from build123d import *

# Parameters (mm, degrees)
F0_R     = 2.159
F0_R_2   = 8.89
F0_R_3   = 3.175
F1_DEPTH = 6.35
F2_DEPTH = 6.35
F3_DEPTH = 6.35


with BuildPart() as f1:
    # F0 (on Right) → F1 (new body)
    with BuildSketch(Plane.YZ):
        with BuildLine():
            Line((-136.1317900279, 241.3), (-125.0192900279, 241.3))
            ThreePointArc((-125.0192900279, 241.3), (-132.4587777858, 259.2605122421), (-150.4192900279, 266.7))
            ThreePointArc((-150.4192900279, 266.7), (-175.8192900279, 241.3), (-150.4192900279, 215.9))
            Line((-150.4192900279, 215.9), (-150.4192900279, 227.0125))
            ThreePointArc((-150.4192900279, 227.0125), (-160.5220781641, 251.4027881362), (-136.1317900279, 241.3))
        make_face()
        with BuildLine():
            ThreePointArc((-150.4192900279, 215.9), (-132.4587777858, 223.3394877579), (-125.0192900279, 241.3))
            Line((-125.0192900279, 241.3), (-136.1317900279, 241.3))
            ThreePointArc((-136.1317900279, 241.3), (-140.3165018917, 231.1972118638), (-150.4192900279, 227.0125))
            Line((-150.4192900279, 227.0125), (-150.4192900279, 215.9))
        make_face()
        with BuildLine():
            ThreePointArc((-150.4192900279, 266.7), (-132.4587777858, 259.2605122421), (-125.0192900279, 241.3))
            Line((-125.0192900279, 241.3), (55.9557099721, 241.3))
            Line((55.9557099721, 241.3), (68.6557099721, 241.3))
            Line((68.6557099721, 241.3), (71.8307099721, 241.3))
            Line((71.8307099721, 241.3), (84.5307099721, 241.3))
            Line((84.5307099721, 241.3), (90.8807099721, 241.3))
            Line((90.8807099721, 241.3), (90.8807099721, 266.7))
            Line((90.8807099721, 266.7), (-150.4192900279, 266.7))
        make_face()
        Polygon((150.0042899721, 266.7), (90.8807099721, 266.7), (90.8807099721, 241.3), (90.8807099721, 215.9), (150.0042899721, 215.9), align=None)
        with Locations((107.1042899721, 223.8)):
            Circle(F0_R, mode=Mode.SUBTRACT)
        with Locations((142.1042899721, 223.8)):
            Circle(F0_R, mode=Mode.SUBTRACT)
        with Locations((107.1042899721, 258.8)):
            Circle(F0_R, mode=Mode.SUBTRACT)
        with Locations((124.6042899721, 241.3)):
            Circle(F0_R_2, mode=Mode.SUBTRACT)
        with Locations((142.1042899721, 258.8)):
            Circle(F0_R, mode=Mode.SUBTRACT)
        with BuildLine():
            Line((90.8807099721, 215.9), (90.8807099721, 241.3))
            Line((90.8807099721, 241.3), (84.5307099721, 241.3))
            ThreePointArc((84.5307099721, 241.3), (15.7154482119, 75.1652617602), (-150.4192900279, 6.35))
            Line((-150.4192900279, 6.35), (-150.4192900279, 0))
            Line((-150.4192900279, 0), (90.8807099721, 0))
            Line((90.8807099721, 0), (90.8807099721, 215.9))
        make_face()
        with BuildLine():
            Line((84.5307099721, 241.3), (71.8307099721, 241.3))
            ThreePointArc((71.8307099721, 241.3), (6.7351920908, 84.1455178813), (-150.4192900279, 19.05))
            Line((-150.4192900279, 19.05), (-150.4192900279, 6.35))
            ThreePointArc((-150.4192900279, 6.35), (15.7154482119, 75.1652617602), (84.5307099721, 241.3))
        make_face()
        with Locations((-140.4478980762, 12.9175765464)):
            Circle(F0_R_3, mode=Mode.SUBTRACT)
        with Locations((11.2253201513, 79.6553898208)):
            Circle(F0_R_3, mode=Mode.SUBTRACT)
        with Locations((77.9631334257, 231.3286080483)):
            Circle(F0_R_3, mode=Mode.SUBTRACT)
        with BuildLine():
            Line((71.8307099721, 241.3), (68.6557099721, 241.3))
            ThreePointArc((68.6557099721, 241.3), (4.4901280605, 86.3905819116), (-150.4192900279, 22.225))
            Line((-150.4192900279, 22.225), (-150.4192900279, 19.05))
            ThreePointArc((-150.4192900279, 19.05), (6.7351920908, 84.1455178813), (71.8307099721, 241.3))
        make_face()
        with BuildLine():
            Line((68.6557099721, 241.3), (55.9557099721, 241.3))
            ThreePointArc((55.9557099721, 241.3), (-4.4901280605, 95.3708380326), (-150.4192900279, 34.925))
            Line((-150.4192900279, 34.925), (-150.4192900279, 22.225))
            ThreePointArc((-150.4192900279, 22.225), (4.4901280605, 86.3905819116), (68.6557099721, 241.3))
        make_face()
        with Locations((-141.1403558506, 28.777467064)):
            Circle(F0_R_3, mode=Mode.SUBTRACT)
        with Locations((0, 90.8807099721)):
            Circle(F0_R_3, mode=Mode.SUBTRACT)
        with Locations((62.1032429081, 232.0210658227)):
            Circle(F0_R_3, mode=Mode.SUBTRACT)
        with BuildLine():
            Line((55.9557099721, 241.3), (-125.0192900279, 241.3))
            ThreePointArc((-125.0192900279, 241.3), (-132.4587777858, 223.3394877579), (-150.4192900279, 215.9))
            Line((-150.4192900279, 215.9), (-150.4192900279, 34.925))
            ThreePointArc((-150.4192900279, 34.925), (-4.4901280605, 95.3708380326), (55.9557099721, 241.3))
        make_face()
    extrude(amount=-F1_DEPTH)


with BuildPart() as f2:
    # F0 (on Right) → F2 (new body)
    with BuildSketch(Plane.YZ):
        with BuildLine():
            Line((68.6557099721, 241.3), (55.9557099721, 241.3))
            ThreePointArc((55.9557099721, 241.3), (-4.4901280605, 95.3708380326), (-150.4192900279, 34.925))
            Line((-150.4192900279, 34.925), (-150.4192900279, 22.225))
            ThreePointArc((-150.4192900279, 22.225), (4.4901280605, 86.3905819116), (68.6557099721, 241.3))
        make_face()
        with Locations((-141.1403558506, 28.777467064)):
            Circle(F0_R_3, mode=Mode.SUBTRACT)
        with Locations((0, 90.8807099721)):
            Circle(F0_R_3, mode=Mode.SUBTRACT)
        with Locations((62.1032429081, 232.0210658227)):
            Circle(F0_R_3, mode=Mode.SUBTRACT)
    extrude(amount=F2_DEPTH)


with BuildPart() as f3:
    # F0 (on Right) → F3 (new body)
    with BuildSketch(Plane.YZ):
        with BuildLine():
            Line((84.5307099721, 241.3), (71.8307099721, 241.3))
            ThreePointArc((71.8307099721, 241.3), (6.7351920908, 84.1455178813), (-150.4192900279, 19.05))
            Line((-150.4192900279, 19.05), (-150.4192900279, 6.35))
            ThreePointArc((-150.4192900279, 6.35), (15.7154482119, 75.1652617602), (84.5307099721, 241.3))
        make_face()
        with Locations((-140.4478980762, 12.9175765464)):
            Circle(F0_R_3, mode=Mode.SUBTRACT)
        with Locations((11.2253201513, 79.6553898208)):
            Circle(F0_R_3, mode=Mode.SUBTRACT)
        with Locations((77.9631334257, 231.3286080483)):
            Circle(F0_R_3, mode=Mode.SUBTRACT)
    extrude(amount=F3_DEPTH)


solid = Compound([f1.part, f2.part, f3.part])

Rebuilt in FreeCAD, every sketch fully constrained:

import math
import FreeCAD as App
import Part
import Sketcher

V = App.Vector
Q = App.Units.Quantity

doc = App.newDocument("Part")
params = doc.addObject("Spreadsheet::Sheet", "Params")
for row, (alias, value) in enumerate([
    ("sketch1_radius", "1 in"),
    ("sketch1_diameter", "0.7 in"),
    ("sketch1_diameter2", "0.25 in"),
    ("sketch1_diameter3", "0.17 in"),
    ("sketch1_diameter4", "1.125 in"),
    ("pad1_length", "0.25 in"),
    ("sketch2_diameter", "0.25 in"),
    ("sketch2_width", "0.5 in"),
    ("sketch2_radius", "8.125 in"),
    ("pad2_length", "0.25 in"),
    ("sketch3_diameter", "0.25 in"),
    ("sketch3_radius", "8.75 in"),
    ("sketch3_radius2", "9.25 in"),
    ("pad3_length", "0.25 in"),
], start=1):
    params.set(f"A{row}", alias)
    params.set(f"B{row}", "=" + value)
    params.setAlias(f"B{row}", alias)

body = doc.addObject("PartDesign::Body", "Body")

# Sketch on YZ plane
sketch1 = body.newObject("Sketcher::SketchObject", "Sketch")
sketch1.AttachmentSupport = (doc.getObject("YZ_Plane"), [""])
sketch1.MapMode = "FlatFace"
sketch1.addGeometry([
    Part.ArcOfCircle(Part.Circle(V(-150.41929, 241.3, 0), V(0, 0, 1), 25.4), math.radians(90), math.radians(270)),  # 0
    Part.LineSegment(V(-150.41929, 215.9, 0), V(-150.41929, 0, 0)),  # 1
    Part.LineSegment(V(-150.41929, 0, 0), V(90.88071, 0, 0)),  # 2
    Part.LineSegment(V(90.88071, 0, 0), V(90.88071, 215.9, 0)),  # 3
    Part.LineSegment(V(90.88071, 215.9, 0), V(150.00429, 215.9, 0)),  # 4
    Part.LineSegment(V(150.00429, 215.9, 0), V(150.00429, 266.7, 0)),  # 5
    Part.LineSegment(V(150.00429, 266.7, 0), V(-150.41929, 266.7, 0)),  # 6
    Part.Circle(V(-140.447898, 12.917577, 0), V(0, 0, 1), 3.175),  # 7
    Part.Circle(V(-141.140356, 28.777467, 0), V(0, 0, 1), 3.175),  # 8
    Part.Circle(V(11.22532, 79.65539, 0), V(0, 0, 1), 3.175),  # 9
    Part.Circle(V(0, 90.88071, 0), V(0, 0, 1), 3.175),  # 10
    Part.Circle(V(-150.41929, 241.3, 0), V(0, 0, 1), 14.2875),  # 11
    Part.Circle(V(62.103243, 232.021066, 0), V(0, 0, 1), 3.175),  # 12
    Part.Circle(V(107.10429, 223.8, 0), V(0, 0, 1), 2.159),  # 13
    Part.Circle(V(142.10429, 223.8, 0), V(0, 0, 1), 2.159),  # 14
    Part.Circle(V(77.963133, 231.328608, 0), V(0, 0, 1), 3.175),  # 15
    Part.Circle(V(124.60429, 241.3, 0), V(0, 0, 1), 8.89),  # 16
    Part.Circle(V(107.10429, 258.8, 0), V(0, 0, 1), 2.159),  # 17
    Part.Circle(V(142.10429, 258.8, 0), V(0, 0, 1), 2.159),  # 18
], False)
sketch1.addConstraint([
    Sketcher.Constraint("Coincident", 0, 2, 1, 1),
    Sketcher.Constraint("Coincident", 1, 2, 2, 1),
    Sketcher.Constraint("Coincident", 2, 2, 3, 1),
    Sketcher.Constraint("Coincident", 3, 2, 4, 1),
    Sketcher.Constraint("Coincident", 4, 2, 5, 1),
    Sketcher.Constraint("Coincident", 5, 2, 6, 1),
    Sketcher.Constraint("Tangent", 6, 2, 0, 1),
    Sketcher.Constraint("Vertical", 1),
    Sketcher.Constraint("Horizontal", 2),
    Sketcher.Constraint("Vertical", 3),
    Sketcher.Constraint("Horizontal", 4),
    Sketcher.Constraint("Vertical", 5),
    Sketcher.Constraint("Horizontal", 6),
    Sketcher.Constraint("Coincident", 11, 3, 0, 3),
    Sketcher.Constraint("Equal", 7, 8),
    Sketcher.Constraint("Equal", 8, 9),
    Sketcher.Constraint("Equal", 9, 10),
    Sketcher.Constraint("Equal", 10, 12),
    Sketcher.Constraint("Equal", 13, 14),
    Sketcher.Constraint("Equal", 12, 15),
    Sketcher.Constraint("Equal", 14, 17),
    Sketcher.Constraint("Equal", 17, 18),
    Sketcher.Constraint("PointOnObject", 10, 3, -2),
    Sketcher.Constraint("PointOnObject", 1, 2, -1),
    Sketcher.Constraint("Horizontal", 13, 3, 14, 3),
    Sketcher.Constraint("Horizontal", 11, 3, 16, 3),
    Sketcher.Constraint("Horizontal", 17, 3, 18, 3),
    Sketcher.Constraint("Horizontal", 0, 2, 3, 2),
    Sketcher.Constraint("Vertical", 13, 3, 17, 3),
    Sketcher.Constraint("Vertical", 14, 3, 18, 3),
    Sketcher.Constraint("Vertical", 11, 3, 0, 2),
    Sketcher.Constraint("Radius", 0, Q("1 in")),
    Sketcher.Constraint("Diameter", 16, Q("0.7 in")),
    Sketcher.Constraint("Diameter", 7, Q("0.25 in")),
    Sketcher.Constraint("Diameter", 13, Q("0.17 in")),
    Sketcher.Constraint("Diameter", 11, Q("1.125 in")),
    Sketcher.Constraint("DistanceX", 2, 1, 2, 2, Q("9.5 in")),
    Sketcher.Constraint("DistanceY", 1, 2, 1, 1, Q("8.5 in")),
    Sketcher.Constraint("DistanceX", 16, 3, 4, 2, Q("1 in")),
    Sketcher.Constraint("DistanceX", 4, 1, 4, 2, Q("2.3277 in")),
    Sketcher.Constraint("DistanceX", 7, 3, -1, 1, 140.447898),
    Sketcher.Constraint("DistanceY", -1, 1, 13, 3, 223.8),
    Sketcher.Constraint("DistanceY", -1, 1, 17, 3, 258.8),
    Sketcher.Constraint("DistanceX", 8, 3, 12, 3, 203.243599),
    Sketcher.Constraint("DistanceY", 8, 3, 12, 3, 203.243599),
    Sketcher.Constraint("DistanceX", 13, 3, 14, 3, 35.0),
    Sketcher.Constraint("DistanceY", 10, 3, 15, 3, 140.447898),
    Sketcher.Constraint("DistanceX", 13, 3, 16, 3, 17.5),
    Sketcher.Constraint("DistanceX", 0, 3, -1, 1, 150.41929),
    Sketcher.Constraint("DistanceX", -1, 1, 9, 3, 11.22532),
    Sketcher.Constraint("DistanceY", -1, 1, 9, 3, 79.65539),
    Sketcher.Constraint("DistanceY", -1, 1, 10, 3, 90.88071),
    Sketcher.Constraint("DistanceY", 7, 3, 8, 3, 15.859891),
    Sketcher.Constraint("DistanceX", 12, 3, 15, 3, 15.859891),
    Sketcher.Constraint("DistanceY", -1, 1, 7, 3, 12.917577),
    Sketcher.Constraint("DistanceX", 8, 3, -1, 1, 141.140356),
])
sketch1.setExpression("Constraints[31]", "Params.sketch1_radius")
sketch1.setExpression("Constraints[32]", "Params.sketch1_diameter")
sketch1.setExpression("Constraints[33]", "Params.sketch1_diameter2")
sketch1.setExpression("Constraints[34]", "Params.sketch1_diameter3")
sketch1.setExpression("Constraints[35]", "Params.sketch1_diameter4")
pad1 = body.newObject("PartDesign::Pad", "Pad")
pad1.Profile = sketch1
pad1.setExpression("Length", "Params.pad1_length")
pad1.Reversed = True
body2 = doc.addObject("PartDesign::Body", "Body001")

# Sketch on YZ plane
sketch2 = body2.newObject("Sketcher::SketchObject", "Sketch001")
sketch2.AttachmentSupport = (doc.getObject("YZ_Plane001"), [""])
sketch2.MapMode = "FlatFace"
sketch2.addGeometry([
    Part.LineSegment(V(68.65571, 241.3, 0), V(55.95571, 241.3, 0)),  # 0
    Part.ArcOfCircle(Part.Circle(V(-150.41929, 241.3, 0), V(0, 0, 1), 206.375), math.radians(-90), math.radians(0)),  # 1
    Part.LineSegment(V(-150.41929, 34.925, 0), V(-150.41929, 22.225, 0)),  # 2
    Part.ArcOfCircle(Part.Circle(V(-150.41929, 241.3, 0), V(0, 0, 1), 219.075), math.radians(-90), math.radians(0)),  # 3
    Part.Circle(V(-141.140356, 28.777467, 0), V(0, 0, 1), 3.175),  # 4
    Part.Circle(V(0, 90.88071, 0), V(0, 0, 1), 3.175),  # 5
    Part.Circle(V(62.103243, 232.021066, 0), V(0, 0, 1), 3.175),  # 6
], False)
sketch2.addConstraint([
    Sketcher.Constraint("Coincident", 0, 2, 1, 2),
    Sketcher.Constraint("Coincident", 1, 1, 2, 1),
    Sketcher.Constraint("Coincident", 2, 2, 3, 1),
    Sketcher.Constraint("Coincident", 3, 2, 0, 1),
    Sketcher.Constraint("Horizontal", 0),
    Sketcher.Constraint("Vertical", 2),
    Sketcher.Constraint("Coincident", 3, 3, 1, 3),
    Sketcher.Constraint("Equal", 4, 5),
    Sketcher.Constraint("Equal", 5, 6),
    Sketcher.Constraint("PointOnObject", 5, 3, -2),
    Sketcher.Constraint("Horizontal", 3, 3, 0, 2),
    Sketcher.Constraint("Vertical", 3, 3, 1, 1),
    Sketcher.Constraint("Diameter", 4, Q("0.25 in")),
    Sketcher.Constraint("DistanceX", 0, 2, 0, 1, Q("0.5 in")),
    Sketcher.Constraint("Radius", 1, Q("8.125 in")),
    Sketcher.Constraint("DistanceY", -1, 1, 1, 3, Q("9.5 in")),
    Sketcher.Constraint("DistanceX", 4, 3, 6, 3, 203.243599),
    Sketcher.Constraint("DistanceY", 4, 3, 6, 3, 203.243599),
    Sketcher.Constraint("DistanceX", 1, 3, -1, 1, 150.41929),
    Sketcher.Constraint("DistanceY", -1, 1, 5, 3, 90.88071),
    Sketcher.Constraint("DistanceX", 4, 3, -1, 1, 141.140356),
    Sketcher.Constraint("DistanceY", -1, 1, 4, 3, 28.777467),
])
sketch2.setExpression("Constraints[12]", "Params.sketch2_diameter")
sketch2.setExpression("Constraints[13]", "Params.sketch2_width")
sketch2.setExpression("Constraints[14]", "Params.sketch2_radius")
pad2 = body2.newObject("PartDesign::Pad", "Pad001")
pad2.Profile = sketch2
pad2.setExpression("Length", "Params.pad2_length")
body3 = doc.addObject("PartDesign::Body", "Body002")

# Sketch on YZ plane
sketch3 = body3.newObject("Sketcher::SketchObject", "Sketch002")
sketch3.AttachmentSupport = (doc.getObject("YZ_Plane002"), [""])
sketch3.MapMode = "FlatFace"
sketch3.addGeometry([
    Part.LineSegment(V(84.53071, 241.3, 0), V(71.83071, 241.3, 0)),  # 0
    Part.ArcOfCircle(Part.Circle(V(-150.41929, 241.3, 0), V(0, 0, 1), 222.25), math.radians(-90), math.radians(0)),  # 1
    Part.LineSegment(V(-150.41929, 19.05, 0), V(-150.41929, 6.35, 0)),  # 2
    Part.ArcOfCircle(Part.Circle(V(-150.41929, 241.3, 0), V(0, 0, 1), 234.95), math.radians(-90), math.radians(0)),  # 3
    Part.Circle(V(-140.447898, 12.917577, 0), V(0, 0, 1), 3.175),  # 4
    Part.Circle(V(11.22532, 79.65539, 0), V(0, 0, 1), 3.175),  # 5
    Part.Circle(V(77.963133, 231.328608, 0), V(0, 0, 1), 3.175),  # 6
], False)
sketch3.addConstraint([
    Sketcher.Constraint("Coincident", 0, 2, 1, 2),
    Sketcher.Constraint("Coincident", 1, 1, 2, 1),
    Sketcher.Constraint("Coincident", 2, 2, 3, 1),
    Sketcher.Constraint("Coincident", 3, 2, 0, 1),
    Sketcher.Constraint("Horizontal", 0),
    Sketcher.Constraint("Vertical", 2),
    Sketcher.Constraint("Coincident", 3, 3, 1, 3),
    Sketcher.Constraint("Equal", 4, 5),
    Sketcher.Constraint("Equal", 5, 6),
    Sketcher.Constraint("Horizontal", 3, 3, 0, 2),
    Sketcher.Constraint("Vertical", 3, 3, 1, 1),
    Sketcher.Constraint("Diameter", 4, Q("0.25 in")),
    Sketcher.Constraint("Radius", 1, Q("8.75 in")),
    Sketcher.Constraint("Radius", 3, Q("9.25 in")),
    Sketcher.Constraint("DistanceY", -1, 1, 1, 3, Q("9.5 in")),
    Sketcher.Constraint("DistanceX", 4, 3, -1, 1, 140.447898),
    Sketcher.Constraint("DistanceX", 1, 3, -1, 1, 150.41929),
    Sketcher.Constraint("DistanceX", -1, 1, 5, 3, 11.22532),
    Sketcher.Constraint("DistanceY", -1, 1, 5, 3, 79.65539),
    Sketcher.Constraint("DistanceY", -1, 1, 6, 3, 231.328608),
    Sketcher.Constraint("DistanceX", 4, 3, 6, 3, 218.411032),
    Sketcher.Constraint("DistanceY", 4, 3, 6, 3, 218.411032),
])
sketch3.setExpression("Constraints[11]", "Params.sketch3_diameter")
sketch3.setExpression("Constraints[12]", "Params.sketch3_radius")
sketch3.setExpression("Constraints[13]", "Params.sketch3_radius2")
pad3 = body3.newObject("PartDesign::Pad", "Pad002")
pad3.Profile = sketch3
pad3.setExpression("Length", "Params.pad3_length")

doc.recompute()
